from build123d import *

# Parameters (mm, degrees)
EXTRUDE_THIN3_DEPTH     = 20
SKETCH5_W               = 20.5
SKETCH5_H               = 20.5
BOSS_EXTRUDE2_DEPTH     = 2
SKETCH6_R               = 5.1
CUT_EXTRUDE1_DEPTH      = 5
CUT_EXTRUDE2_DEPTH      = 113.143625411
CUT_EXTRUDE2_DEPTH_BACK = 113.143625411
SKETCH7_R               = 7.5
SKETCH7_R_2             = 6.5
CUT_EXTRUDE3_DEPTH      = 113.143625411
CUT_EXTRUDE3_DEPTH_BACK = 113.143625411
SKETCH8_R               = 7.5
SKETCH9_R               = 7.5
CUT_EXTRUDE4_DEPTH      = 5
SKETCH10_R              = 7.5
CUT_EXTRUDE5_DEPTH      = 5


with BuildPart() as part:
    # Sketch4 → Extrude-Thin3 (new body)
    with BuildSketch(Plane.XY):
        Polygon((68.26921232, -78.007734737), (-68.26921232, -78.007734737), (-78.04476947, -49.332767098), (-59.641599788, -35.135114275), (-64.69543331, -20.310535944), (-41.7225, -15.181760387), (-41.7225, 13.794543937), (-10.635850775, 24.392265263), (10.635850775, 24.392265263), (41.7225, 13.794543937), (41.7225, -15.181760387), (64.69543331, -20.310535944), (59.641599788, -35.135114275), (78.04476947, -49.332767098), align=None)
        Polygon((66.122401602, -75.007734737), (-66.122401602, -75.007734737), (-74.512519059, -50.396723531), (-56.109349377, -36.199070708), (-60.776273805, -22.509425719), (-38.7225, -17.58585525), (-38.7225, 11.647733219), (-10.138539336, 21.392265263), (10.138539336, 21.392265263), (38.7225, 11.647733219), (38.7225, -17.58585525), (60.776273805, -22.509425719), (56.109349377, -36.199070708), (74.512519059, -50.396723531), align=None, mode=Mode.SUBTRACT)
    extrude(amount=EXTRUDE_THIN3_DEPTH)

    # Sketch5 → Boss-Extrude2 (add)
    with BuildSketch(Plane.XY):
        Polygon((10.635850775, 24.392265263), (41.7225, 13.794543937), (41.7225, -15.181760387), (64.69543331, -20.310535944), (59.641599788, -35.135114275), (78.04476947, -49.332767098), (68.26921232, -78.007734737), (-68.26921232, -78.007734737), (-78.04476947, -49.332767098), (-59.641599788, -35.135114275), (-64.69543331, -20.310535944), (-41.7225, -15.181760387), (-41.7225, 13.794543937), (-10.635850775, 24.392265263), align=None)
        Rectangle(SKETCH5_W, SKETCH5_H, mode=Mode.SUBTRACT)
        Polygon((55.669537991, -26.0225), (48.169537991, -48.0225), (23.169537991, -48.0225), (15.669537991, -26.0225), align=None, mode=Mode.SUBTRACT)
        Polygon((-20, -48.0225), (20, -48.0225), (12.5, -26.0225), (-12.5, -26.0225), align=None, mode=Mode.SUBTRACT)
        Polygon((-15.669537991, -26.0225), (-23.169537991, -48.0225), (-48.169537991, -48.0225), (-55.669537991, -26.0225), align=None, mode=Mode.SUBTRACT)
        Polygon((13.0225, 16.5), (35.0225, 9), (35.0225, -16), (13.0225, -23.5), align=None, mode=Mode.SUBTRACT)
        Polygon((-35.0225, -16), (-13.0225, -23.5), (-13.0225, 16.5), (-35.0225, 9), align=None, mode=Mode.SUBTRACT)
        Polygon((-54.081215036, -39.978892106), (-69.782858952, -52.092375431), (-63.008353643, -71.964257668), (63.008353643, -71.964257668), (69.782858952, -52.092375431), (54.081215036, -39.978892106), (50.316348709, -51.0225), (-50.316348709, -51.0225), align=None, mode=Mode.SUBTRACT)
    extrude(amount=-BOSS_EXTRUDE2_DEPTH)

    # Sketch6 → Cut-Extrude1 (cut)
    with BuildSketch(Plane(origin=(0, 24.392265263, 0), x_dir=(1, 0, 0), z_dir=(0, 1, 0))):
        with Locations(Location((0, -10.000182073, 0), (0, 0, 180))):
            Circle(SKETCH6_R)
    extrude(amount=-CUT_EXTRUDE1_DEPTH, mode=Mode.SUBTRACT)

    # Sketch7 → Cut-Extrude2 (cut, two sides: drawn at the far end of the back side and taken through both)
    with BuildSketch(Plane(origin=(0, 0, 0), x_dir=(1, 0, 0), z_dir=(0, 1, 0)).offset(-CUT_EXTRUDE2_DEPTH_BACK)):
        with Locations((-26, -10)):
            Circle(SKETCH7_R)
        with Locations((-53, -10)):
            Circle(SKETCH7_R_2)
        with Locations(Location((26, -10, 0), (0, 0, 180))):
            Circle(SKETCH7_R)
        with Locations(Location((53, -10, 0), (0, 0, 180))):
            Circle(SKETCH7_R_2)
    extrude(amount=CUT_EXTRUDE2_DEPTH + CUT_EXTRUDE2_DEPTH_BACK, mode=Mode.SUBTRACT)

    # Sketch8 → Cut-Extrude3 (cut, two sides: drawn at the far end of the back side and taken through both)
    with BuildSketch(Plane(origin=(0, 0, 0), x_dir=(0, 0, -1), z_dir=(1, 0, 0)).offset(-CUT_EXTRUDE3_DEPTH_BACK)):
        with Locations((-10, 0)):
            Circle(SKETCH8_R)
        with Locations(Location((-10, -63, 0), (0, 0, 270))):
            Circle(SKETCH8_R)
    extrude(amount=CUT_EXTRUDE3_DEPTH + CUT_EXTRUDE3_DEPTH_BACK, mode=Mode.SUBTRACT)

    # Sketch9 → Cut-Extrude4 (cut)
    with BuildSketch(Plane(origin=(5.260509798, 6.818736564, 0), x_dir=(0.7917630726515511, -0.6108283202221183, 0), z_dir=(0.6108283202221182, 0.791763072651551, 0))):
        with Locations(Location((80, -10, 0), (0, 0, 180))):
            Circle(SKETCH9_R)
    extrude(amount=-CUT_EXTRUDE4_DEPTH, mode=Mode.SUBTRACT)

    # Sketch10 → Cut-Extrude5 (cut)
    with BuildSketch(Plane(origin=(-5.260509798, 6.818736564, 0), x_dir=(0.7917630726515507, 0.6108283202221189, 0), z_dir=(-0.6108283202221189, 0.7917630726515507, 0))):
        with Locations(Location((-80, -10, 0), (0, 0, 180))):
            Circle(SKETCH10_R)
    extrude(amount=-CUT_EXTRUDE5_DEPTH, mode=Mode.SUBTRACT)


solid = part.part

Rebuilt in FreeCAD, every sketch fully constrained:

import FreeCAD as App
import Part
import Sketcher
Q = App.Units.Quantity


def add_polygon(sketch, points):
    """Adds a closed chain of lines whose ends are joined by coincident constraints."""
    first, n = sketch.GeometryCount, len(points)
    for a, b in zip(points, points[1:] + points[:1]):
        sketch.addGeometry(Part.LineSegment(App.Vector(*a, 0), App.Vector(*b, 0)), False)
    for i in range(n):
        sketch.addConstraint(Sketcher.Constraint("Coincident", first + i, 2, first + (i + 1) % n, 1))

doc = App.newDocument("Part")
params = doc.addObject("Spreadsheet::Sheet", "Params")
for row, (alias, value) in enumerate([
    ("pad1_length", "20 mm"),
    ("sketch2_width", "25 mm"),
    ("sketch2_width2", "40 mm"),
    ("sketch2_width3", "20.5 mm"),
    ("pad2_length", "2 mm"),
    ("sketch3_diameter", "10.2 mm"),
    ("pocket1_length", "5 mm"),
    ("sketch4_diameter", "15 mm"),
    ("sketch4_diameter2", "13 mm"),
    ("sketch5_diameter", "15 mm"),
    ("sketch6_diameter", "15 mm"),
    ("pocket4_length", "5 mm"),
    ("sketch7_diameter", "15 mm"),
    ("pocket5_length", "5 mm"),
], start=1):
    params.set(f"A{row}", alias)
    params.set(f"B{row}", "=" + value)
    params.setAlias(f"B{row}", alias)

body = doc.addObject("PartDesign::Body", "Body")

# Sketch on XY plane
sketch1 = body.newObject("Sketcher::SketchObject", "Sketch")
sketch1.AttachmentSupport = (doc.getObject("XY_Plane"), [""])
sketch1.MapMode = "FlatFace"
add_polygon(sketch1, [(-68.269212, -78.007735), (68.269212, -78.007735), (78.044769, -49.332767), (59.6416, -35.135114), (64.695433, -20.310536), (41.7225, -15.18176), (41.7225, 13.794544), (10.635851, 24.392265), (-10.635851, 24.392265), (-41.7225, 13.794544), (-41.7225, -15.18176), (-64.695433, -20.310536), (-59.6416, -35.135114), (-78.044769, -49.332767)])  # lines 0-13
add_polygon(sketch1, [(66.122402, -75.007735), (-66.122402, -75.007735), (-74.512519, -50.396724), (-56.109349, -36.199071), (-60.776274, -22.509426), (-38.7225, -17.585855), (-38.7225, 11.647733), (-10.138539, 21.392265), (10.138539, 21.392265), (38.7225, 11.647733), (38.7225, -17.585855), (60.776274, -22.509426), (56.109349, -36.199071), (74.512519, -50.396724)])  # lines 14-27
sketch1.addConstraint(Sketcher.Constraint("Horizontal", 0))
sketch1.addConstraint(Sketcher.Constraint("Vertical", 5))
sketch1.addConstraint(Sketcher.Constraint("Horizontal", 7))
sketch1.addConstraint(Sketcher.Constraint("Vertical", 9))
sketch1.addConstraint(Sketcher.Constraint("Horizontal", 14))
sketch1.addConstraint(Sketcher.Constraint("Vertical", 19))
sketch1.addConstraint(Sketcher.Constraint("Horizontal", 21))
sketch1.addConstraint(Sketcher.Constraint("Vertical", 23))
sketch1.addConstraint(Sketcher.Constraint("Symmetric", 5, 2, 8, 2, -2))
sketch1.addConstraint(Sketcher.Constraint("Symmetric", 3, 2, 10, 2, -2))
sketch1.addConstraint(Sketcher.Constraint("Symmetric", 2, 2, 11, 2, -2))
sketch1.addConstraint(Sketcher.Constraint("Symmetric", 1, 2, 12, 2, -2))
sketch1.addConstraint(Sketcher.Constraint("Symmetric", 19, 2, 22, 2, -2))
sketch1.addConstraint(Sketcher.Constraint("Symmetric", 17, 2, 24, 2, -2))
sketch1.addConstraint(Sketcher.Constraint("Symmetric", 16, 2, 25, 2, -2))
sketch1.addConstraint(Sketcher.Constraint("Symmetric", 15, 2, 26, 2, -2))
sketch1.addConstraint(Sketcher.Constraint("Parallel", 1, 3))
sketch1.addConstraint(Sketcher.Constraint("Perpendicular", 3, 6))
sketch1.addConstraint(Sketcher.Constraint("Perpendicular", 8, 11))
sketch1.addConstraint(Sketcher.Constraint("Parallel", 11, 13))
sketch1.addConstraint(Sketcher.Constraint("Parallel", 13, 15))
sketch1.addConstraint(Sketcher.Constraint("Parallel", 12, 16))
sketch1.addConstraint(Sketcher.Constraint("Parallel", 15, 17))
sketch1.addConstraint(Sketcher.Constraint("Parallel", 10, 18))
sketch1.addConstraint(Sketcher.Constraint("Perpendicular", 17, 20))
sketch1.addConstraint(Sketcher.Constraint("Parallel", 6, 22))
sketch1.addConstraint(Sketcher.Constraint("Parallel", 4, 24))
sketch1.addConstraint(Sketcher.Constraint("Parallel", 25, 27))
sketch1.addConstraint(Sketcher.Constraint("Horizontal", 4, 2, 9, 2))
sketch1.addConstraint(Sketcher.Constraint("Equal", 12, 16))
sketch1.addConstraint(Sketcher.Constraint("DistanceY", 13, 2, 14, 2, Q("3 mm")))
sketch1.addConstraint(Sketcher.Constraint("DistanceX", 9, 2, 18, 2, Q("3 mm")))
sketch1.addConstraint(Sketcher.Constraint("DistanceY", 20, 2, 7, 2, Q("3 mm")))
sketch1.addConstraint(Sketcher.Constraint("DistanceX", 7, 2, 7, 1, Q("21.271702 mm")))
sketch1.addConstraint(Sketcher.Constraint("DistanceX", 8, 2, 5, 2, Q("83.445 mm")))
sketch1.addConstraint(Sketcher.Constraint("DistanceX", 21, 1, 21, 2, Q("20.277079 mm")))
sketch1.addConstraint(Sketcher.Constraint("DistanceY", 19, 1, 19, 2, Q("29.233588 mm")))
sketch1.addConstraint(Sketcher.Constraint("DistanceX", -1, 1, 2, 2, Q("59.6416 mm")))
sketch1.addConstraint(Sketcher.Constraint("DistanceX", 14, 2, -1, 1, Q("66.122402 mm")))
sketch1.addConstraint(Sketcher.Constraint("DistanceY", 0, 2, 3, 2, Q("57.697199 mm")))
sketch1.addConstraint(Sketcher.Constraint("DistanceY", 3, 2, 6, 2, Q("44.702801 mm")))
sketch1.addConstraint(Sketcher.Constraint("DistanceY", 23, 2, 5, 2, Q("31.380399 mm")))
sketch1.addConstraint(Sketcher.Constraint("Distance", 2, Q("23.243279 mm")))
sketch1.addConstraint(Sketcher.Constraint("Distance", 4, Q("23.538479 mm")))
sketch1.addConstraint(Sketcher.Constraint("Distance", 18, Q("22.596692 mm")))
sketch1.addConstraint(Sketcher.Constraint("DistanceX", 0, 1, 0, 2, Q("136.538425 mm")))
sketch1.addConstraint(Sketcher.Constraint("DistanceY", 4, 2, -1, 1, Q("15.18176 mm")))
sketch1.addConstraint(Sketcher.Constraint("DistanceX", 15, 2, -1, 1, Q("74.512519 mm")))
pad1 = body.newObject("PartDesign::Pad", "Pad")
pad1.Profile = sketch1
pad1.setExpression("Length", "Params.pad1_length")

# Sketch on XY plane
sketch2 = body.newObject("Sketcher::SketchObject", "Sketch001")
sketch2.AttachmentSupport = (doc.getObject("XY_Plane"), [""])
sketch2.MapMode = "FlatFace"
add_polygon(sketch2, [(41.7225, 13.794544), (10.635851, 24.392265), (-10.635851, 24.392265), (-41.7225, 13.794544), (-41.7225, -15.18176), (-64.695433, -20.310536), (-59.6416, -35.135114), (-78.044769, -49.332767), (-68.269212, -78.007735), (68.269212, -78.007735), (78.044769, -49.332767), (59.6416, -35.135114), (64.695433, -20.310536), (41.7225, -15.18176)])  # lines 0-13
add_polygon(sketch2, [(55.669538, -26.0225), (48.169538, -48.0225), (23.169538, -48.0225), (15.669538, -26.0225)])  # lines 14-17
add_polygon(sketch2, [(-54.081215, -39.978892), (-50.316349, -51.0225), (50.316349, -51.0225), (54.081215, -39.978892), (69.782859, -52.092375), (63.008354, -71.964258), (-63.008354, -71.964258), (-69.782859, -52.092375)])  # lines 18-25
add_polygon(sketch2, [(-20, -48.0225), (-12.5, -26.0225), (12.5, -26.0225), (20, -48.0225)])  # lines 26-29
add_polygon(sketch2, [(-15.669538, -26.0225), (-23.169538, -48.0225), (-48.169538, -48.0225), (-55.669538, -26.0225)])  # lines 30-33
add_polygon(sketch2, [(13.0225, 16.5), (35.0225, 9), (35.0225, -16), (13.0225, -23.5)])  # lines 34-37
add_polygon(sketch2, [(-10.25, -10.25), (-10.25, 10.25), (10.25, 10.25), (10.25, -10.25)])  # lines 38-41
add_polygon(sketch2, [(-35.0225, -16), (-35.0225, 9), (-13.0225, 16.5), (-13.0225, -23.5)])  # lines 42-45
sketch2.addConstraint(Sketcher.Constraint("Horizontal", 1))
sketch2.addConstraint(Sketcher.Constraint("Vertical", 3))
sketch2.addConstraint(Sketcher.Constraint("Horizontal", 8))
sketch2.addConstraint(Sketcher.Constraint("Vertical", 13))
sketch2.addConstraint(Sketcher.Constraint("Horizontal", 15))
sketch2.addConstraint(Sketcher.Constraint("Horizontal", 17))
sketch2.addConstraint(Sketcher.Constraint("Horizontal", 19))
sketch2.addConstraint(Sketcher.Constraint("Horizontal", 23))
sketch2.addConstraint(Sketcher.Constraint("Horizontal", 27))
sketch2.addConstraint(Sketcher.Constraint("Horizontal", 29))
sketch2.addConstraint(Sketcher.Constraint("Horizontal", 31))
sketch2.addConstraint(Sketcher.Constraint("Horizontal", 33))
sketch2.addConstraint(Sketcher.Constraint("Vertical", 35))
sketch2.addConstraint(Sketcher.Constraint("Vertical", 37))
sketch2.addConstraint(Sketcher.Constraint("Vertical", 38))
sketch2.addConstraint(Sketcher.Constraint("Horizontal", 39))
sketch2.addConstraint(Sketcher.Constraint("Vertical", 40))
sketch2.addConstraint(Sketcher.Constraint("Horizontal", 41))
sketch2.addConstraint(Sketcher.Constraint("Vertical", 42))
sketch2.addConstraint(Sketcher.Constraint("Vertical", 44))
sketch2.addConstraint(Sketcher.Constraint("Symmetric", 38, 2, 40, 2, -1, 1))
sketch2.addConstraint(Sketcher.Constraint("Symmetric", 6, 2, 9, 2, -2))
sketch2.addConstraint(Sketcher.Constraint("Symmetric", 5, 2, 10, 2, -2))
sketch2.addConstraint(Sketcher.Constraint("Symmetric", 4, 2, 11, 2, -2))
sketch2.addConstraint(Sketcher.Constraint("Symmetric", 3, 2, 12, 2, -2))
sketch2.addConstraint(Sketcher.Constraint("Symmetric", 21, 2, 24, 2, -2))
sketch2.addConstraint(Sketcher.Constraint("Symmetric", 20, 2, 25, 2, -2))
sketch2.addConstraint(Sketcher.Constraint("Symmetric", 15, 2, 30, 2, -2))
sketch2.addConstraint(Sketcher.Constraint("Symmetric", 17, 2, 32, 2, -2))
sketch2.addConstraint(Sketcher.Constraint("Symmetric", 34, 2, 42, 2, -2))
sketch2.addConstraint(Sketcher.Constraint("Symmetric", 37, 2, 43, 2, -2))
sketch2.addConstraint(Sketcher.Constraint("Perpendicular", 2, 5))
sketch2.addConstraint(Sketcher.Constraint("Parallel", 5, 7))
sketch2.addConstraint(Sketcher.Constraint("Perpendicular", 0, 9))
sketch2.addConstraint(Sketcher.Constraint("Parallel", 9, 11))
sketch2.addConstraint(Sketcher.Constraint("Parallel", 11, 14))
sketch2.addConstraint(Sketcher.Constraint("Parallel", 7, 16))
sketch2.addConstraint(Sketcher.Constraint("Parallel", 16, 18))
sketch2.addConstraint(Sketcher.Constraint("Parallel", 14, 20))
sketch2.addConstraint(Sketcher.Constraint("Parallel", 10, 21))
sketch2.addConstraint(Sketcher.Constraint("Parallel", 20, 22))
sketch2.addConstraint(Sketcher.Constraint("Parallel", 18, 24))
sketch2.addConstraint(Sketcher.Constraint("Parallel", 22, 26))
sketch2.addConstraint(Sketcher.Constraint("Parallel", 24, 28))
sketch2.addConstraint(Sketcher.Constraint("Parallel", 26, 30))
sketch2.addConstraint(Sketcher.Constraint("Parallel", 28, 32))
sketch2.addConstraint(Sketcher.Constraint("Perpendicular", 30, 34))
sketch2.addConstraint(Sketcher.Constraint("Perpendicular", 32, 36))
sketch2.addConstraint(Sketcher.Constraint("Parallel", 34, 45))
sketch2.addConstraint(Sketcher.Constraint("Horizontal", 2, 2, 13, 2))
sketch2.addConstraint(Sketcher.Constraint("Horizontal", 17, 2, 26, 2))
sketch2.addConstraint(Sketcher.Constraint("Horizontal", 15, 2, 28, 2))
sketch2.addConstraint(Sketcher.Constraint("Horizontal", 36, 2, 44, 2))
sketch2.addConstraint(Sketcher.Constraint("Equal", 15, 27))
sketch2.addConstraint(Sketcher.Constraint("Equal", 31, 35))
sketch2.addConstraint(Sketcher.Constraint("Equal", 33, 37))
sketch2.addConstraint(Sketcher.Constraint("Equal", 41, 38))
sketch2.addConstraint(Sketcher.Constraint("Equal", 10, 14))
sketch2.addConstraint(Sketcher.Constraint("DistanceX", 15, 2, 15, 1, Q("25 mm")))
sketch2.addConstraint(Sketcher.Constraint("DistanceX", 17, 1, 17, 2, Q("40 mm")))
sketch2.addConstraint(Sketcher.Constraint("DistanceX", 39, 1, 39, 2, Q("20.5 mm")))
sketch2.addConstraint(Sketcher.Constraint("DistanceX", -1, 1, 28, 2, Q("20 mm")))
sketch2.addConstraint(Sketcher.Constraint("DistanceY", -1, 1, 34, 2, Q("9 mm")))
sketch2.addConstraint(Sketcher.Constraint("DistanceY", 15, 2, 16, 2, Q("22 mm")))
sketch2.addConstraint(Sketcher.Constraint("DistanceY", 19, 2, 14, 2, Q("3 mm")))
sketch2.addConstraint(Sketcher.Constraint("DistanceY", 8, 2, 0, 2, Q("102.4 mm")))
sketch2.addConstraint(Sketcher.Constraint("DistanceX", 34, 2, 13, 2, Q("6.7 mm")))
sketch2.addConstraint(Sketcher.Constraint("DistanceX", 1, 2, 1, 1, Q("21.271702 mm")))
sketch2.addConstraint(Sketcher.Constraint("DistanceX", 2, 2, -1, 1, Q("41.7225 mm")))
sketch2.addConstraint(Sketcher.Constraint("DistanceX", 5, 2, -1, 1, Q("59.6416 mm")))
sketch2.addConstraint(Sketcher.Constraint("DistanceY", 14, 2, -1, 1, Q("48.0225 mm")))
sketch2.addConstraint(Sketcher.Constraint("DistanceY", 4, 2, 1, 2, Q("44.702801 mm")))
sketch2.addConstraint(Sketcher.Constraint("Distance", 4, Q("23.538479 mm")))
sketch2.addConstraint(Sketcher.Constraint("Distance", 18, Q("11.667712 mm")))
sketch2.addConstraint(Sketcher.Constraint("Distance", 21, Q("19.831241 mm")))
sketch2.addConstraint(Sketcher.Constraint("DistanceX", 8, 1, 8, 2, Q("136.538425 mm")))
sketch2.addConstraint(Sketcher.Constraint("DistanceX", 19, 1, 19, 2, Q("100.632697 mm")))
sketch2.addConstraint(Sketcher.Constraint("DistanceX", 23, 2, 23, 1, Q("126.016707 mm")))
sketch2.addConstraint(Sketcher.Constraint("DistanceY", 3, 2, 3, 1, Q("28.976304 mm")))
sketch2.addConstraint(Sketcher.Constraint("DistanceY", 3, 2, -1, 1, Q("15.18176 mm")))
sketch2.addConstraint(Sketcher.Constraint("DistanceX", 14, 2, 10, 2, Q("11.472062 mm")))
sketch2.setExpression("Constraints[104]", "Params.sketch2_width")
sketch2.setExpression("Constraints[105]", "Params.sketch2_width2")
sketch2.setExpression("Constraints[106]", "Params.sketch2_width3")
pad2 = body.newObject("PartDesign::Pad", "Pad001")
pad2.Profile = sketch2
pad2.setExpression("Length", "Params.pad2_length")
pad2.Reversed = True

# Sketch on XZ plane
sketch3 = body.newObject("Sketcher::SketchObject", "Sketch002")
sketch3.AttachmentSupport = (doc.getObject("XZ_Plane"), [""])
sketch3.MapMode = "FlatFace"
sketch3.AttachmentOffset = App.Placement(App.Vector(0, 0, -24.392265), App.Rotation())
sketch3.addGeometry(Part.Circle(App.Vector(0, 10.000182, 0), App.Vector(0, 0, 1), 5.1), False)
sketch3.addConstraint(Sketcher.Constraint("PointOnObject", 0, 3, -2))
sketch3.addConstraint(Sketcher.Constraint("Diameter", 0, Q("10.2 mm")))
sketch3.addConstraint(Sketcher.Constraint("DistanceY", -1, 1, 0, 3, Q("10.000182 mm")))
sketch3.setExpression("Constraints[1]", "Params.sketch3_diameter")
pocket1 = body.newObject("PartDesign::Pocket", "Pocket")
pocket1.Profile = sketch3
pocket1.setExpression("Length", "Params.pocket1_length")
pocket1.Reversed = True

# Sketch on XZ plane
sketch4 = body.newObject("Sketcher::SketchObject", "Sketch003")
sketch4.AttachmentSupport = (doc.getObject("XZ_Plane"), [""])
sketch4.MapMode = "FlatFace"
sketch4.addGeometry(Part.Circle(App.Vector(-26, 10, 0), App.Vector(0, 0, 1), 7.5), False)
sketch4.addGeometry(Part.Circle(App.Vector(-53, 10, 0), App.Vector(0, 0, 1), 6.5), False)
sketch4.addGeometry(Part.Circle(App.Vector(26, 10, 0), App.Vector(0, 0, 1), 7.5), False)
sketch4.addGeometry(Part.Circle(App.Vector(53, 10, 0), App.Vector(0, 0, 1), 6.5), False)
sketch4.addConstraint(Sketcher.Constraint("Equal", 0, 2))
sketch4.addConstraint(Sketcher.Constraint("Equal", 1, 3))
sketch4.addConstraint(Sketcher.Constraint("Symmetric", 0, 3, 2, 3, -2))
sketch4.addConstraint(Sketcher.Constraint("Symmetric", 1, 3, 3, 3, -2))
sketch4.addConstraint(Sketcher.Constraint("Horizontal", 0, 3, 1, 3))
sketch4.addConstraint(Sketcher.Constraint("Diameter", 0, Q("15 mm")))
sketch4.addConstraint(Sketcher.Constraint("Diameter", 1, Q("13 mm")))
sketch4.addConstraint(Sketcher.Constraint("DistanceX", 0, 3, -1, 1, Q("26 mm")))
sketch4.addConstraint(Sketcher.Constraint("DistanceY", -1, 1, 0, 3, Q("10 mm")))
sketch4.addConstraint(Sketcher.Constraint("DistanceX", 1, 3, -1, 1, Q("53 mm")))
sketch4.setExpression("Constraints[5]", "Params.sketch4_diameter")
sketch4.setExpression("Constraints[6]", "Params.sketch4_diameter2")
pocket2 = body.newObject("PartDesign::Pocket", "Pocket001")
pocket2.Profile = sketch4
pocket2.Type = "ThroughAll"
pocket2.Midplane = True

# Sketch on YZ plane
sketch5 = body.newObject("Sketcher::SketchObject", "Sketch004")
sketch5.AttachmentSupport = (doc.getObject("YZ_Plane"), [""])
sketch5.MapMode = "FlatFace"
sketch5.addGeometry(Part.Circle(App.Vector(0, 10, 0), App.Vector(0, 0, 1), 7.5), False)
sketch5.addGeometry(Part.Circle(App.Vector(-63, 10, 0), App.Vector(0, 0, 1), 7.5), False)
sketch5.addConstraint(Sketcher.Constraint("Equal", 0, 1))
sketch5.addConstraint(Sketcher.Constraint("PointOnObject", 0, 3, -2))
sketch5.addConstraint(Sketcher.Constraint("Horizontal", 0, 3, 1, 3))
sketch5.addConstraint(Sketcher.Constraint("Diameter", 0, Q("15 mm")))
sketch5.addConstraint(Sketcher.Constraint("DistanceY", -1, 1, 0, 3, Q("10 mm")))
sketch5.addConstraint(Sketcher.Constraint("DistanceX", 1, 3, -1, 1, Q("63 mm")))
sketch5.setExpression("Constraints[3]", "Params.sketch5_diameter")
pocket3 = body.newObject("PartDesign::Pocket", "Pocket002")
pocket3.Profile = sketch5
pocket3.Type = "ThroughAll"
pocket3.Midplane = True

# Sketch on an angled plane
sketch6 = body.newObject("Sketcher::SketchObject", "Sketch005")
sketch6.Placement = App.Placement(App.Vector(5.26051, 6.818737, 0), App.Rotation(App.Vector(0.791763073, -0.61082832, 0), App.Vector(0, 0, -1), App.Vector(0.61082832, 0.791763073, 0), "ZXY"))
sketch6.addGeometry(Part.Circle(App.Vector(80, -10, 0), App.Vector(0, 0, 1), 7.5), False)
sketch6.addConstraint(Sketcher.Constraint("Diameter", 0, Q("15 mm")))
sketch6.addConstraint(Sketcher.Constraint("DistanceX", -1, 1, 0, 3, Q("80 mm")))
sketch6.addConstraint(Sketcher.Constraint("DistanceY", 0, 3, -1, 1, Q("10 mm")))
sketch6.setExpression("Constraints[0]", "Params.sketch6_diameter")
pocket4 = body.newObject("PartDesign::Pocket", "Pocket003")
pocket4.Profile = sketch6
pocket4.setExpression("Length", "Params.pocket4_length")

# Sketch on an angled plane
sketch7 = body.newObject("Sketcher::SketchObject", "Sketch006")
sketch7.Placement = App.Placement(App.Vector(-5.26051, 6.818737, 0), App.Rotation(App.Vector(0.791763073, 0.61082832, 0), App.Vector(0, 0, -1), App.Vector(-0.61082832, 0.791763073, 0), "ZXY"))
sketch7.addGeometry(Part.Circle(App.Vector(-80, -10, 0), App.Vector(0, 0, 1), 7.5), False)
sketch7.addConstraint(Sketcher.Constraint("Diameter", 0, Q("15 mm")))
sketch7.addConstraint(Sketcher.Constraint("DistanceX", 0, 3, -1, 1, Q("80 mm")))
sketch7.addConstraint(Sketcher.Constraint("DistanceY", 0, 3, -1, 1, Q("10 mm")))
sketch7.setExpression("Constraints[0]", "Params.sketch7_diameter")
pocket5 = body.newObject("PartDesign::Pocket", "Pocket004")
pocket5.Profile = sketch7
pocket5.setExpression("Length", "Params.pocket5_length")

doc.recompute()
